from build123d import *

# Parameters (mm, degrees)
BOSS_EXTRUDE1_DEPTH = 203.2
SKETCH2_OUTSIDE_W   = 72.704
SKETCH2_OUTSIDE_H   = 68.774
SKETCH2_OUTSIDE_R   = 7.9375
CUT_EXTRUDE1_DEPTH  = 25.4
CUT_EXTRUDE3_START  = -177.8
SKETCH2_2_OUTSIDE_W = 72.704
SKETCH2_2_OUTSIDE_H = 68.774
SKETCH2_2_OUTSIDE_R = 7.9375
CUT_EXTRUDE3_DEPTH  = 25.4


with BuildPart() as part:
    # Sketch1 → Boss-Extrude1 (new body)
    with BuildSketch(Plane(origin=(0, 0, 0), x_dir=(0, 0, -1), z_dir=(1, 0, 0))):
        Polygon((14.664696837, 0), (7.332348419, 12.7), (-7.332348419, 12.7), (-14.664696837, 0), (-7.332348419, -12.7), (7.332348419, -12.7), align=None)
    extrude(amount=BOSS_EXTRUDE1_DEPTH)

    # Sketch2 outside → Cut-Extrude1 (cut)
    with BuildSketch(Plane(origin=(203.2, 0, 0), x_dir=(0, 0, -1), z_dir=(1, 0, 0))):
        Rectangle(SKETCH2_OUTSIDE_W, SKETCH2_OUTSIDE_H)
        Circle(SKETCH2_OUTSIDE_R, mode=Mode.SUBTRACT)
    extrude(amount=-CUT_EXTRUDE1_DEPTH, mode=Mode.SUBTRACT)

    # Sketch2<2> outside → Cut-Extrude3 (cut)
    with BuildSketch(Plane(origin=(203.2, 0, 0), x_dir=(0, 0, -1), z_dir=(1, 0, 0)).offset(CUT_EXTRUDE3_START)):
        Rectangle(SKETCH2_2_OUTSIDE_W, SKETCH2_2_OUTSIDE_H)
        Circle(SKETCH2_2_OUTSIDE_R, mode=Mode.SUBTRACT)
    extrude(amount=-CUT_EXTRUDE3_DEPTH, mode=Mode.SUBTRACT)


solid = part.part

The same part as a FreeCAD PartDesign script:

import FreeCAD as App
import Part
import Sketcher
from FreeCAD import Vector
Q = App.Units.Quantity

doc = App.newDocument("Part")
body = doc.addObject("PartDesign::Body", "Body")

# Sketch on YZ plane
sketch1 = body.newObject("Sketcher::SketchObject", "Sketch")
sketch1.AttachmentSupport = (doc.getObject("YZ_Plane"), [""])
sketch1.MapMode = "FlatFace"
sketch1.addGeometry(Part.LineSegment(Vector(0, -14.664697, 0), Vector(12.7, -7.332348, 0)), False)
sketch1.addGeometry(Part.LineSegment(Vector(12.7, -7.332348, 0), Vector(12.7, 7.332348, 0)), False)
sketch1.addGeometry(Part.LineSegment(Vector(12.7, 7.332348, 0), Vector(0, 14.664697, 0)), False)
sketch1.addGeometry(Part.LineSegment(Vector(0, 14.664697, 0), Vector(-12.7, 7.332348, 0)), False)
sketch1.addGeometry(Part.LineSegment(Vector(-12.7, 7.332348, 0), Vector(-12.7, -7.332348, 0)), False)
sketch1.addGeometry(Part.LineSegment(Vector(-12.7, -7.332348, 0), Vector(0, -14.664697, 0)), False)
sketch1.addConstraint(Sketcher.Constraint("Coincident", 0, 2, 1, 1))
sketch1.addConstraint(Sketcher.Constraint("Coincident", 1, 2, 2, 1))
sketch1.addConstraint(Sketcher.Constraint("Coincident", 2, 2, 3, 1))
sketch1.addConstraint(Sketcher.Constraint("Coincident", 3, 2, 4, 1))
sketch1.addConstraint(Sketcher.Constraint("Coincident", 4, 2, 5, 1))
sketch1.addConstraint(Sketcher.Constraint("Coincident", 5, 2, 0, 1))
sketch1.addConstraint(Sketcher.Constraint("Vertical", 1))
sketch1.addConstraint(Sketcher.Constraint("Vertical", 4))
sketch1.addConstraint(Sketcher.Constraint("Symmetric", 0, 2, 3, 2, -1, 1))
sketch1.addConstraint(Sketcher.Constraint("Symmetric", 2, 2, 5, 2, -1, 1))
sketch1.addConstraint(Sketcher.Constraint("PointOnObject", 2, 2, -2))
sketch1.addConstraint(Sketcher.Constraint("Parallel", 2, 5))
sketch1.addConstraint(Sketcher.Constraint("Horizontal", 1, 2, 3, 2))
sketch1.addConstraint(Sketcher.Constraint("Angle", 0, Q("30 deg")))
sketch1.addConstraint(Sketcher.Constraint("DistanceX", 3, 2, 1, 2, Q("1 in")))
sketch1.addConstraint(Sketcher.Constraint("DistanceY", 1, 1, 1, 2, Q("14.664697 mm")))
pad1 = body.newObject("PartDesign::Pad", "Pad")
pad1.Profile = sketch1
pad1.Length = Q("8 in")

# Sketch on YZ plane
sketch2 = body.newObject("Sketcher::SketchObject", "Sketch001")
sketch2.AttachmentSupport = (doc.getObject("YZ_Plane"), [""])
sketch2.MapMode = "FlatFace"
sketch2.AttachmentOffset = App.Placement(Vector(0, 0, 8 * 25.4), App.Rotation())
sketch2.addGeometry(Part.LineSegment(Vector(34.387, 36.352, 0), Vector(-34.387, 36.352, 0)), False)
sketch2.addGeometry(Part.LineSegment(Vector(-34.387, 36.352, 0), Vector(-34.387, -36.352, 0)), False)
sketch2.addGeometry(Part.LineSegment(Vector(-34.387, -36.352, 0), Vector(34.387, -36.352, 0)), False)
sketch2.addGeometry(Part.LineSegment(Vector(34.387, -36.352, 0), Vector(34.387, 36.352, 0)), False)
sketch2.addGeometry(Part.Circle(Vector(0, 0, 0), Vector(0, 0, 1), 7.9375), False)
sketch2.addConstraint(Sketcher.Constraint("Coincident", 0, 2, 1, 1))
sketch2.addConstraint(Sketcher.Constraint("Coincident", 1, 2, 2, 1))
sketch2.addConstraint(Sketcher.Constraint("Coincident", 2, 2, 3, 1))
sketch2.addConstraint(Sketcher.Constraint("Coincident", 3, 2, 0, 1))
sketch2.addConstraint(Sketcher.Constraint("Horizontal", 0))
sketch2.addConstraint(Sketcher.Constraint("Vertical", 1))
sketch2.addConstraint(Sketcher.Constraint("Horizontal", 2))
sketch2.addConstraint(Sketcher.Constraint("Vertical", 3))
sketch2.addConstraint(Sketcher.Constraint("Coincident", 4, 3, -1, 1))
sketch2.addConstraint(Sketcher.Constraint("Symmetric", 0, 2, 2, 2, -1, 1))
sketch2.addConstraint(Sketcher.Constraint("Diameter", 4, Q("0.625 in")))
sketch2.addConstraint(Sketcher.Constraint("DistanceX", 0, 2, 0, 1, Q("68.774 mm")))
sketch2.addConstraint(Sketcher.Constraint("DistanceY", 1, 2, 1, 1, Q("72.704 mm")))
pocket1 = body.newObject("PartDesign::Pocket", "Pocket")
pocket1.Profile = sketch2
pocket1.Length = Q("1 in")

# Sketch on YZ plane
sketch3 = body.newObject("Sketcher::SketchObject", "Sketch002")
sketch3.AttachmentSupport = (doc.getObject("YZ_Plane"), [""])
sketch3.MapMode = "FlatFace"
sketch3.AttachmentOffset = App.Placement(Vector(0, 0, 1 * 25.4), App.Rotation())
sketch3.addGeometry(Part.LineSegment(Vector(34.387, 36.352, 0), Vector(-34.387, 36.352, 0)), False)
sketch3.addGeometry(Part.LineSegment(Vector(-34.387, 36.352, 0), Vector(-34.387, -36.352, 0)), False)
sketch3.addGeometry(Part.LineSegment(Vector(-34.387, -36.352, 0), Vector(34.387, -36.352, 0)), False)
sketch3.addGeometry(Part.LineSegment(Vector(34.387, -36.352, 0), Vector(34.387, 36.352, 0)), False)
sketch3.addGeometry(Part.Circle(Vector(0, 0, 0), Vector(0, 0, 1), 7.9375), False)
sketch3.addConstraint(Sketcher.Constraint("Coincident", 0, 2, 1, 1))
sketch3.addConstraint(Sketcher.Constraint("Coincident", 1, 2, 2, 1))
sketch3.addConstraint(Sketcher.Constraint("Coincident", 2, 2, 3, 1))
sketch3.addConstraint(Sketcher.Constraint("Coincident", 3, 2, 0, 1))
sketch3.addConstraint(Sketcher.Constraint("Horizontal", 0))
sketch3.addConstraint(Sketcher.Constraint("Vertical", 1))
sketch3.addConstraint(Sketcher.Constraint("Horizontal", 2))
sketch3.addConstraint(Sketcher.Constraint("Vertical", 3))
sketch3.addConstraint(Sketcher.Constraint("Coincident", 4, 3, -1, 1))
sketch3.addConstraint(Sketcher.Constraint("Symmetric", 0, 2, 2, 2, -1, 1))
sketch3.addConstraint(Sketcher.Constraint("Diameter", 4, Q("0.625 in")))
sketch3.addConstraint(Sketcher.Constraint("DistanceX", 0, 2, 0, 1, Q("68.774 mm")))
sketch3.addConstraint(Sketcher.Constraint("DistanceY", 1, 2, 1, 1, Q("72.704 mm")))
pocket2 = body.newObject("PartDesign::Pocket", "Pocket001")
pocket2.Profile = sketch3
pocket2.Length = Q("1 in")

doc.recompute()
